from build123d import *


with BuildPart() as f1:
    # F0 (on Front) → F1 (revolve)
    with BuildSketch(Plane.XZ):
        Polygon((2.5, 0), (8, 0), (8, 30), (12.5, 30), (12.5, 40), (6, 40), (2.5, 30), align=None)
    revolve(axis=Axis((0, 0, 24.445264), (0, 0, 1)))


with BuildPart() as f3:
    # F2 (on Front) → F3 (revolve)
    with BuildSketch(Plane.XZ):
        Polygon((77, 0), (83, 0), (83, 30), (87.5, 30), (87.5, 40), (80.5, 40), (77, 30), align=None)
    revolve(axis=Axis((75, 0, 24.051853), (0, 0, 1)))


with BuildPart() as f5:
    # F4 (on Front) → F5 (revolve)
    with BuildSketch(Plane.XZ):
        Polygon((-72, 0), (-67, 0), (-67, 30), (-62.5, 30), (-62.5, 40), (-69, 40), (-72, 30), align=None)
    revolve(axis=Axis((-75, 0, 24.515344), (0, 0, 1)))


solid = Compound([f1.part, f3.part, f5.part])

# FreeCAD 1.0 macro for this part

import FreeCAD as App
import Part
import Sketcher

V = App.Vector

doc = App.newDocument("Part")
body = doc.addObject("PartDesign::Body", "Body")

# Sketch on XZ plane
sketch1 = doc.addObject("Sketcher::SketchObject", "Sketch")
body.addObject(sketch1)
sketch1.AttachmentSupport = (doc.XZ_Plane, [""])
sketch1.MapMode = "FlatFace"
sketch1.addGeometry([
    Part.LineSegment(V(2.5, 0, 0), V(8, 0, 0)),  # 0
    Part.LineSegment(V(8, 0, 0), V(8, 30, 0)),  # 1
    Part.LineSegment(V(8, 30, 0), V(12.5, 30, 0)),  # 2
    Part.LineSegment(V(12.5, 30, 0), V(12.5, 40, 0)),  # 3
    Part.LineSegment(V(12.5, 40, 0), V(6, 40, 0)),  # 4
    Part.LineSegment(V(6, 40, 0), V(2.5, 30, 0)),  # 5
    Part.LineSegment(V(2.5, 30, 0), V(2.5, 0, 0)),  # 6
], False)
sketch1.addConstraint([
    Sketcher.Constraint("Coincident", 0, 2, 1, 1),
    Sketcher.Constraint("Coincident", 1, 2, 2, 1),
    Sketcher.Constraint("Coincident", 2, 2, 3, 1),
    Sketcher.Constraint("Coincident", 3, 2, 4, 1),
    Sketcher.Constraint("Coincident", 4, 2, 5, 1),
    Sketcher.Constraint("Coincident", 5, 2, 6, 1),
    Sketcher.Constraint("Coincident", 6, 2, 0, 1),
    Sketcher.Constraint("Horizontal", 0),
    Sketcher.Constraint("Vertical", 1),
    Sketcher.Constraint("Horizontal", 2),
    Sketcher.Constraint("Vertical", 3),
    Sketcher.Constraint("Horizontal", 4),
    Sketcher.Constraint("Vertical", 6),
    Sketcher.Constraint("PointOnObject", 0, 2, -1),
    Sketcher.Constraint("Horizontal", 2, 2, 5, 2),
    Sketcher.Constraint("DistanceY", 1, 1, 1, 2, 30.0),
    Sketcher.Constraint("DistanceY", 3, 1, 3, 2, 10.0),
    Sketcher.Constraint("DistanceX", 0, 1, 0, 2, 5.5),
    Sketcher.Constraint("DistanceX", 2, 1, 2, 2, 4.5),
    Sketcher.Constraint("DistanceX", 4, 2, 4, 1, 6.5),
    Sketcher.Constraint("DistanceX", -1, 1, 0, 2, 8.0),
])
revolution = doc.addObject("PartDesign::Revolution", "Revolution")
body.addObject(revolution)
revolution.Profile = sketch1
revolution.ReferenceAxis = (sketch1, ["V_Axis"])
revolution.Angle = 360
body2 = doc.addObject("PartDesign::Body", "Body001")

# Sketch on XZ plane
sketch2 = doc.addObject("Sketcher::SketchObject", "Sketch001")
body2.addObject(sketch2)
sketch2.AttachmentSupport = (doc.getObject("XZ_Plane001"), [""])
sketch2.MapMode = "FlatFace"
sketch2.addGeometry([
    Part.LineSegment(V(77, 0, 0), V(83, 0, 0)),  # 0
    Part.LineSegment(V(83, 0, 0), V(83, 30, 0)),  # 1
    Part.LineSegment(V(83, 30, 0), V(87.5, 30, 0)),  # 2
    Part.LineSegment(V(87.5, 30, 0), V(87.5, 40, 0)),  # 3
    Part.LineSegment(V(87.5, 40, 0), V(80.5, 40, 0)),  # 4
    Part.LineSegment(V(80.5, 40, 0), V(77, 30, 0)),  # 5
    Part.LineSegment(V(77, 30, 0), V(77, 0, 0)),  # 6
], False)
sketch2.addGeometry(Part.LineSegment(V(75, 0, 0), V(75, 40, 0)), True)  # axis
sketch2.addConstraint([
    Sketcher.Constraint("Coincident", 0, 2, 1, 1),
    Sketcher.Constraint("Coincident", 1, 2, 2, 1),
    Sketcher.Constraint("Coincident", 2, 2, 3, 1),
    Sketcher.Constraint("Coincident", 3, 2, 4, 1),
    Sketcher.Constraint("Coincident", 4, 2, 5, 1),
    Sketcher.Constraint("Coincident", 5, 2, 6, 1),
    Sketcher.Constraint("Coincident", 6, 2, 0, 1),
    Sketcher.Constraint("Horizontal", 0),
    Sketcher.Constraint("Vertical", 1),
    Sketcher.Constraint("Horizontal", 2),
    Sketcher.Constraint("Vertical", 3),
    Sketcher.Constraint("Horizontal", 4),
    Sketcher.Constraint("Vertical", 6),
    Sketcher.Constraint("Vertical", 7),
    Sketcher.Constraint("PointOnObject", 0, 2, -1),
    Sketcher.Constraint("PointOnObject", 7, 1, -1),
    Sketcher.Constraint("Horizontal", 2, 2, 5, 2),
    Sketcher.Constraint("Horizontal", 4, 2, 7, 2),
    Sketcher.Constraint("DistanceX", 0, 1, 0, 2, 6.0),
    Sketcher.Constraint("DistanceX", 4, 2, 4, 1, 7.0),
    Sketcher.Constraint("DistanceY", 1, 1, 1, 2, 30.0),
    Sketcher.Constraint("DistanceY", 3, 1, 3, 2, 10.0),
    Sketcher.Constraint("DistanceX", 2, 1, 2, 2, 4.5),
    Sketcher.Constraint("DistanceX", -1, 1, 0, 2, 83.0),
    Sketcher.Constraint("DistanceX", -1, 1, 7, 1, 75.0),
])
revolution2 = doc.addObject("PartDesign::Revolution", "Revolution001")
body2.addObject(revolution2)
revolution2.Profile = sketch2
revolution2.ReferenceAxis = (sketch2, ["Axis0"])
revolution2.Angle = 360
body3 = doc.addObject("PartDesign::Body", "Body002")

# Sketch on XZ plane
sketch3 = doc.addObject("Sketcher::SketchObject", "Sketch002")
body3.addObject(sketch3)
sketch3.AttachmentSupport = (doc.getObject("XZ_Plane002"), [""])
sketch3.MapMode = "FlatFace"
sketch3.addGeometry([
    Part.LineSegment(V(-72, 0, 0), V(-67, 0, 0)),  # 0
    Part.LineSegment(V(-67, 0, 0), V(-67, 30, 0)),  # 1
    Part.LineSegment(V(-67, 30, 0), V(-62.5, 30, 0)),  # 2
    Part.LineSegment(V(-62.5, 30, 0), V(-62.5, 40, 0)),  # 3
    Part.LineSegment(V(-62.5, 40, 0), V(-69, 40, 0)),  # 4
    Part.LineSegment(V(-69, 40, 0), V(-72, 30, 0)),  # 5
    Part.LineSegment(V(-72, 30, 0), V(-72, 0, 0)),  # 6
], False)
sketch3.addGeometry(Part.LineSegment(V(-75, 0, 0), V(-75, 40, 0)), True)  # axis
sketch3.addConstraint([
    Sketcher.Constraint("Coincident", 0, 2, 1, 1),
    Sketcher.Constraint("Coincident", 1, 2, 2, 1),
    Sketcher.Constraint("Coincident", 2, 2, 3, 1),
    Sketcher.Constraint("Coincident", 3, 2, 4, 1),
    Sketcher.Constraint("Coincident", 4, 2, 5, 1),
    Sketcher.Constraint("Coincident", 5, 2, 6, 1),
    Sketcher.Constraint("Coincident", 6, 2, 0, 1),
    Sketcher.Constraint("Horizontal", 0),
    Sketcher.Constraint("Vertical", 1),
    Sketcher.Constraint("Horizontal", 2),
    Sketcher.Constraint("Vertical", 3),
    Sketcher.Constraint("Horizontal", 4),
    Sketcher.Constraint("Vertical", 6),
    Sketcher.Constraint("Vertical", 7),
    Sketcher.Constraint("PointOnObject", 0, 2, -1),
    Sketcher.Constraint("PointOnObject", 7, 1, -1),
    Sketcher.Constraint("Horizontal", 2, 2, 5, 2),
    Sketcher.Constraint("Horizontal", 4, 2, 7, 2),
    Sketcher.Constraint("DistanceX", 0, 1, 0, 2, 5.0),
    Sketcher.Constraint("DistanceY", 1, 1, 1, 2, 30.0),
    Sketcher.Constraint("DistanceY", 3, 1, 3, 2, 10.0),
    Sketcher.Constraint("DistanceX", 2, 1, 2, 2, 4.5),
    Sketcher.Constraint("DistanceX", 4, 2, 4, 1, 6.5),
    Sketcher.Constraint("DistanceX", 0, 2, -1, 1, 67.0),
    Sketcher.Constraint("DistanceX", 7, 1, -1, 1, 75.0),
])
revolution3 = doc.addObject("PartDesign::Revolution", "Revolution002")
body3.addObject(revolution3)
revolution3.Profile = sketch3
revolution3.ReferenceAxis = (sketch3, ["Axis0"])
revolution3.Angle = 360

doc.recompute()
